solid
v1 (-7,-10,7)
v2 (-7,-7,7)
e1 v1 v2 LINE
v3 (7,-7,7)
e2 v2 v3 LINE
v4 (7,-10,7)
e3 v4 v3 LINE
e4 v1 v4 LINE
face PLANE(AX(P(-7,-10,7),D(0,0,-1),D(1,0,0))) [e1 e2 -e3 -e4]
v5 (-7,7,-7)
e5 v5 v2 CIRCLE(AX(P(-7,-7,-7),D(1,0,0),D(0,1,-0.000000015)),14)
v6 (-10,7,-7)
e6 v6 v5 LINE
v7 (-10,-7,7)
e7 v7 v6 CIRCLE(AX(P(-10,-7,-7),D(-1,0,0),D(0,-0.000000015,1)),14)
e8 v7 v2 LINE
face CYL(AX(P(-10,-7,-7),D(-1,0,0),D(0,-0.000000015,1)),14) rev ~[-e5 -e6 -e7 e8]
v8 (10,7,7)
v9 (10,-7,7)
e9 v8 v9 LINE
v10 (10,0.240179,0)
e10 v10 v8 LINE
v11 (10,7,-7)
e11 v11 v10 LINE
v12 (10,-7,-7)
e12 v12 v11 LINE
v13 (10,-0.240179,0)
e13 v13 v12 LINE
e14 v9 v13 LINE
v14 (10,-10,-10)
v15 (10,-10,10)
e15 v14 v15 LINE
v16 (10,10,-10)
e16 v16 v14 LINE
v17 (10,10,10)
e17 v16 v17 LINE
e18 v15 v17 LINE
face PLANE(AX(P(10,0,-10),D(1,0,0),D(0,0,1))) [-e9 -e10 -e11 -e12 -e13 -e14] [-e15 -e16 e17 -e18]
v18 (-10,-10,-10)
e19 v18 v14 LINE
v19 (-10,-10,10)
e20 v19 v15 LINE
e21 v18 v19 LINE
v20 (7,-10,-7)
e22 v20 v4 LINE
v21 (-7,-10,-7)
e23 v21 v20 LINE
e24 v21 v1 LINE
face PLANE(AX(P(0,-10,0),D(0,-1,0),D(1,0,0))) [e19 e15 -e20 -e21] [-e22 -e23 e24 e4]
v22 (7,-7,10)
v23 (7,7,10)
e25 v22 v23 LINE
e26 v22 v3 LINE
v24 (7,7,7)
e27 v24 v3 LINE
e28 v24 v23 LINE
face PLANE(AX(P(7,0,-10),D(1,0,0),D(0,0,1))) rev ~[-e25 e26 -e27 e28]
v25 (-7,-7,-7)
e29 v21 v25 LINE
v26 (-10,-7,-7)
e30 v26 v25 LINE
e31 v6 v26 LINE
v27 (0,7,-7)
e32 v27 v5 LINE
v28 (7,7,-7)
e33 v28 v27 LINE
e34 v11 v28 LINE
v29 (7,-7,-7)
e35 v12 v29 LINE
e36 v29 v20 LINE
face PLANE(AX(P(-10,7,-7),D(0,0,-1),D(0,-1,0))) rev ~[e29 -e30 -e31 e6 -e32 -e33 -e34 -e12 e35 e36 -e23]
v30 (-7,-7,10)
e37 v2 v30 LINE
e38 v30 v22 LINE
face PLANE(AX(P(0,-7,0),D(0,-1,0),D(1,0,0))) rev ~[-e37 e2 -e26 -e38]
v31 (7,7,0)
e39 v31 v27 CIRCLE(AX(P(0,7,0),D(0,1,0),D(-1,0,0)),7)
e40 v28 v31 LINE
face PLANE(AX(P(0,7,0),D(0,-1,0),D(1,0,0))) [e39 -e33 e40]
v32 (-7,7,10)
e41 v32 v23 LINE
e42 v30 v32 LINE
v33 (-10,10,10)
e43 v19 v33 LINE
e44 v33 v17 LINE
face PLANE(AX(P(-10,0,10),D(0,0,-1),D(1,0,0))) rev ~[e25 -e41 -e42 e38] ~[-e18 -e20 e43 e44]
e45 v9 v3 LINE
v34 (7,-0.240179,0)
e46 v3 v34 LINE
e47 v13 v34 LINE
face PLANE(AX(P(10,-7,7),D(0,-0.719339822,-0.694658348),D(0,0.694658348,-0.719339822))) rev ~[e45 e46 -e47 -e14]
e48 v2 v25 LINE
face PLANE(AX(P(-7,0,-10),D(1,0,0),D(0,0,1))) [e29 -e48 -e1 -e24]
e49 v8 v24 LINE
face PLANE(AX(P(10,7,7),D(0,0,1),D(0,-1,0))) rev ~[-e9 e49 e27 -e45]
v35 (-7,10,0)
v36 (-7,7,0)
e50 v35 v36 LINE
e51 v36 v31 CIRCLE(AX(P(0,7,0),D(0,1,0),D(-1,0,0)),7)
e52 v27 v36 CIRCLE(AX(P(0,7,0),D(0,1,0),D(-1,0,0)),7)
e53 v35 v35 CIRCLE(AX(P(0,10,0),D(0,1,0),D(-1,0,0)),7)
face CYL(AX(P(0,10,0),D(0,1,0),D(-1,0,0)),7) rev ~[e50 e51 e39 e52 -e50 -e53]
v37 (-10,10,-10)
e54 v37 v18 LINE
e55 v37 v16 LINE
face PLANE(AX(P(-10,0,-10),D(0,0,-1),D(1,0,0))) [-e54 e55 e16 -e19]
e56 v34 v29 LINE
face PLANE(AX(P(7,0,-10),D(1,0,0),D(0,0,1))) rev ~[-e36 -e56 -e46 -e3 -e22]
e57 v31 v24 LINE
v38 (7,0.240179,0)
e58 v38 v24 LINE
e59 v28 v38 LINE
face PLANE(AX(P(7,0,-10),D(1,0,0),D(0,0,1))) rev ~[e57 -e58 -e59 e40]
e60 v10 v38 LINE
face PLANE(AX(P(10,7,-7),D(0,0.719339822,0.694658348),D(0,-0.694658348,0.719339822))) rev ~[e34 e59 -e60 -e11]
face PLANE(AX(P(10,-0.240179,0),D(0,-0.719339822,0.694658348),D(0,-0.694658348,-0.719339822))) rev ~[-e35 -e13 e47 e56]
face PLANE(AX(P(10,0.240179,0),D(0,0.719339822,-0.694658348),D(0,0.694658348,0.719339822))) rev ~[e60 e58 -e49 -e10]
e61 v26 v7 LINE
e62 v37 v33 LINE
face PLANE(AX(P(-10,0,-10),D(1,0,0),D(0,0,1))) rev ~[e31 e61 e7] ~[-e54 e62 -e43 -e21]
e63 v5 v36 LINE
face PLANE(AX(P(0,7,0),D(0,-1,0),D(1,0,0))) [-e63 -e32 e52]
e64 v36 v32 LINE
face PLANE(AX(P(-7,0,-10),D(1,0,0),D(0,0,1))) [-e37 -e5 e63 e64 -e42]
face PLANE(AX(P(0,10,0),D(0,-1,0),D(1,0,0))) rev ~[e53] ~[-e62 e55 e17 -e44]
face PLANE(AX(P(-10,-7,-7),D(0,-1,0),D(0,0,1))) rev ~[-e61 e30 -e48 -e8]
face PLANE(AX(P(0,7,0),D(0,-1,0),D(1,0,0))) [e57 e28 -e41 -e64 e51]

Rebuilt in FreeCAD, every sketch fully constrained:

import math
import FreeCAD as App
import Part
import Sketcher
from FreeCAD import Vector
Q = App.Units.Quantity


def faces_at(feature, points):
    """Names of the faces that lie closest to the given points."""
    faces = feature.Shape.Faces
    near = lambda p: min(range(len(faces)), key=lambda i: faces[i].distToShape(Part.Vertex(*p))[0])
    return sorted({f"Face{near(p) + 1}" for p in points})


def add_polygon(sketch, points):
    """Adds a closed chain of lines whose ends are joined by coincident constraints."""
    first, n = sketch.GeometryCount, len(points)
    for a, b in zip(points, points[1:] + points[:1]):
        sketch.addGeometry(Part.LineSegment(App.Vector(*a, 0), App.Vector(*b, 0)), False)
    for i in range(n):
        sketch.addConstraint(Sketcher.Constraint("Coincident", first + i, 2, first + (i + 1) % n, 1))

doc = App.newDocument("Part")
body = doc.addObject("PartDesign::Body", "Body")

# Sketch on XZ plane
sketch1 = body.newObject("Sketcher::SketchObject", "Sketch")
sketch1.AttachmentSupport = (doc.getObject("XZ_Plane"), [""])
sketch1.MapMode = "FlatFace"
add_polygon(sketch1, [(-10, 10), (-10, -10), (10, -10), (10, 10)])  # lines 0-3
sketch1.addConstraint([
    Sketcher.Constraint("Vertical", 0),
    Sketcher.Constraint("Horizontal", 1),
    Sketcher.Constraint("Vertical", 2),
    Sketcher.Constraint("Horizontal", 3),
    Sketcher.Constraint("Symmetric", 0, 2, 2, 2, -1, 1),
    Sketcher.Constraint("Equal", 3, 0),
    Sketcher.Constraint("DistanceX", 1, 1, 1, 2, Q("20 mm")),
])
pad1 = body.newObject("PartDesign::Pad", "Pad")
pad1.Profile = sketch1
pad1.Length = 20
pad1.Midplane = True
doc.recompute()

thickness = body.newObject("PartDesign::Thickness", "Thickness")
thickness.Base = (pad1, faces_at(pad1, [(0, 0, 10)]))
thickness.Value = 3
thickness.Reversed = True
thickness.Join = "Arc"

# Sketch on XZ plane
sketch2 = body.newObject("Sketcher::SketchObject", "Sketch001")
sketch2.AttachmentSupport = (doc.getObject("XZ_Plane"), [""])
sketch2.MapMode = "FlatFace"
sketch2.AttachmentOffset = App.Placement(Vector(0, 0, -10), App.Rotation())
sketch2.addGeometry(Part.Circle(Vector(0, 0, 0), Vector(0, 0, 1), 7), False)
sketch2.addConstraint([
    Sketcher.Constraint("Coincident", 0, 3, -1, 1),
    Sketcher.Constraint("Diameter", 0, Q("14 mm")),
])
pocket1 = body.newObject("PartDesign::Pocket", "Pocket")
pocket1.Profile = sketch2
pocket1.Length = 6
pocket1.Reversed = True

# Sketch on XZ plane
sketch3 = body.newObject("Sketcher::SketchObject", "Sketch002")
sketch3.AttachmentSupport = (doc.getObject("XZ_Plane"), [""])
sketch3.MapMode = "FlatFace"
sketch3.AttachmentOffset = App.Placement(Vector(0, 0, 10), App.Rotation())
add_polygon(sketch3, [(-7, 7), (-7, -7), (7, -7), (7, 7)])  # lines 0-3
sketch3.addConstraint([
    Sketcher.Constraint("Vertical", 0),
    Sketcher.Constraint("Horizontal", 1),
    Sketcher.Constraint("Vertical", 2),
    Sketcher.Constraint("Horizontal", 3),
    Sketcher.Constraint("Symmetric", 0, 2, 2, 2, -1, 1),
    Sketcher.Constraint("Equal", 3, 0),
    Sketcher.Constraint("DistanceX", 1, 1, 1, 2, Q("14 mm")),
])
pocket2 = body.newObject("PartDesign::Pocket", "Pocket001")
pocket2.Profile = sketch3
pocket2.Length = 6

# Sketch on YZ plane
sketch4 = body.newObject("Sketcher::SketchObject", "Sketch003")
sketch4.AttachmentSupport = (doc.getObject("YZ_Plane"), [""])
sketch4.MapMode = "FlatFace"
sketch4.AttachmentOffset = App.Placement(Vector(0, 0, 10), App.Rotation())
add_polygon(sketch4, [(0, 0), (-7, -7), (7, -7), (0, 0), (7, 7), (-7, 7)])  # lines 0-5
sketch4.addConstraint([
    Sketcher.Constraint("Horizontal", 1),
    Sketcher.Constraint("Horizontal", 4),
    Sketcher.Constraint("Symmetric", 0, 2, 3, 2, -1, 1),
    Sketcher.Constraint("Symmetric", 2, 2, 5, 2, -1, 1),
    Sketcher.Constraint("PointOnObject", 2, 2, -1),
    Sketcher.Constraint("Parallel", 2, 5),
    Sketcher.Constraint("Vertical", 1, 2, 3, 2),
    Sketcher.Constraint("DistanceX", 1, 1, 1, 2, Q("14 mm")),
    Sketcher.Constraint("Angle", 0, Q("-133.999998 deg")),
    Sketcher.Constraint("DistanceY", 0, 2, -1, 1, Q("7 mm")),
])
pocket3 = body.newObject("PartDesign::Pocket", "Pocket002")
pocket3.Profile = sketch4
pocket3.Length = 6

# Sketch on YZ plane
sketch5 = body.newObject("Sketcher::SketchObject", "Sketch004")
sketch5.AttachmentSupport = (doc.getObject("YZ_Plane"), [""])
sketch5.MapMode = "FlatFace"
sketch5.AttachmentOffset = App.Placement(Vector(0, 0, -10), App.Rotation())
sketch5.addGeometry([
    Part.ArcOfCircle(Part.Circle(Vector(-7, -7, 0), Vector(0, 0, 1), 14), math.radians(0), math.radians(90)),
    Part.LineSegment(Vector(7, -7, 0), Vector(-7, -7, 0)),
    Part.LineSegment(Vector(-7, -7, 0), Vector(-7, 7, 0)),
], False)
sketch5.addConstraint([
    Sketcher.Constraint("Coincident", 0, 1, 1, 1),
    Sketcher.Constraint("Coincident", 1, 2, 2, 1),
    Sketcher.Constraint("Coincident", 2, 2, 0, 2),
    Sketcher.Constraint("Horizontal", 1),
    Sketcher.Constraint("Vertical", 2),
    Sketcher.Constraint("Coincident", 1, 2, 0, 3),
    Sketcher.Constraint("Symmetric", 0, 1, 2, 2, -1, 1),
    Sketcher.Constraint("Radius", 0, Q("14 mm")),
])
pocket4 = body.newObject("PartDesign::Pocket", "Pocket003")
pocket4.Profile = sketch5
pocket4.Length = 6
pocket4.Reversed = True

doc.recompute()
